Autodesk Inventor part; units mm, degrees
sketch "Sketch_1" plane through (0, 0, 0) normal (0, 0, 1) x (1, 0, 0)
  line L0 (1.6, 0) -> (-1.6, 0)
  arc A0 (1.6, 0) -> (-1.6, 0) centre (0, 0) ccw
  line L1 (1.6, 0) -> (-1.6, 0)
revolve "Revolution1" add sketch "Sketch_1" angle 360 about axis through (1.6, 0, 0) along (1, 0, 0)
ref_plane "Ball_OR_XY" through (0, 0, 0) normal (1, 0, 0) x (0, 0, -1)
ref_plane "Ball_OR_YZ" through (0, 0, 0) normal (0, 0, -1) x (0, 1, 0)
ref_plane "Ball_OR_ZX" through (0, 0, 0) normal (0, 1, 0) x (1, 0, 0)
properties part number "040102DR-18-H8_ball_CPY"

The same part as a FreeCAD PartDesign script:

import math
import FreeCAD as App
import Part
import Sketcher
from FreeCAD import Vector
Q = App.Units.Quantity

doc = App.newDocument("Part")
body = doc.addObject("PartDesign::Body", "Body")

sketch1 = body.newObject("Sketcher::SketchObject", "Sketch")
sketch1.AttachmentSupport = (doc.getObject("XY_Plane"), [""])
sketch1.MapMode = "FlatFace"
sketch1.addGeometry(Part.LineSegment(Vector(-1.6, 0, 0), Vector(1.6, 0, 0)), False)
sketch1.addGeometry(Part.ArcOfCircle(Part.Circle(Vector(0, 0, 0), Vector(0, 0, 1), 1.6), math.radians(0), math.radians(180)), False)
sketch1.addConstraint(Sketcher.Constraint("Coincident", 0, 1, 1, 2))
sketch1.addConstraint(Sketcher.Constraint("Coincident", 1, 1, 0, 2))
sketch1.addConstraint(Sketcher.Constraint("Horizontal", 0))
sketch1.addConstraint(Sketcher.Constraint("Coincident", 1, 3, -1, 1))
sketch1.addConstraint(Sketcher.Constraint("PointOnObject", 0, 1, -1))
sketch1.addConstraint(Sketcher.Constraint("Radius", 1, Q("1.6 mm")))
revolution = body.newObject("PartDesign::Revolution", "Revolution")
revolution.Profile = sketch1
revolution.ReferenceAxis = (sketch1, ["H_Axis"])
revolution.Angle = 360

doc.recompute()
